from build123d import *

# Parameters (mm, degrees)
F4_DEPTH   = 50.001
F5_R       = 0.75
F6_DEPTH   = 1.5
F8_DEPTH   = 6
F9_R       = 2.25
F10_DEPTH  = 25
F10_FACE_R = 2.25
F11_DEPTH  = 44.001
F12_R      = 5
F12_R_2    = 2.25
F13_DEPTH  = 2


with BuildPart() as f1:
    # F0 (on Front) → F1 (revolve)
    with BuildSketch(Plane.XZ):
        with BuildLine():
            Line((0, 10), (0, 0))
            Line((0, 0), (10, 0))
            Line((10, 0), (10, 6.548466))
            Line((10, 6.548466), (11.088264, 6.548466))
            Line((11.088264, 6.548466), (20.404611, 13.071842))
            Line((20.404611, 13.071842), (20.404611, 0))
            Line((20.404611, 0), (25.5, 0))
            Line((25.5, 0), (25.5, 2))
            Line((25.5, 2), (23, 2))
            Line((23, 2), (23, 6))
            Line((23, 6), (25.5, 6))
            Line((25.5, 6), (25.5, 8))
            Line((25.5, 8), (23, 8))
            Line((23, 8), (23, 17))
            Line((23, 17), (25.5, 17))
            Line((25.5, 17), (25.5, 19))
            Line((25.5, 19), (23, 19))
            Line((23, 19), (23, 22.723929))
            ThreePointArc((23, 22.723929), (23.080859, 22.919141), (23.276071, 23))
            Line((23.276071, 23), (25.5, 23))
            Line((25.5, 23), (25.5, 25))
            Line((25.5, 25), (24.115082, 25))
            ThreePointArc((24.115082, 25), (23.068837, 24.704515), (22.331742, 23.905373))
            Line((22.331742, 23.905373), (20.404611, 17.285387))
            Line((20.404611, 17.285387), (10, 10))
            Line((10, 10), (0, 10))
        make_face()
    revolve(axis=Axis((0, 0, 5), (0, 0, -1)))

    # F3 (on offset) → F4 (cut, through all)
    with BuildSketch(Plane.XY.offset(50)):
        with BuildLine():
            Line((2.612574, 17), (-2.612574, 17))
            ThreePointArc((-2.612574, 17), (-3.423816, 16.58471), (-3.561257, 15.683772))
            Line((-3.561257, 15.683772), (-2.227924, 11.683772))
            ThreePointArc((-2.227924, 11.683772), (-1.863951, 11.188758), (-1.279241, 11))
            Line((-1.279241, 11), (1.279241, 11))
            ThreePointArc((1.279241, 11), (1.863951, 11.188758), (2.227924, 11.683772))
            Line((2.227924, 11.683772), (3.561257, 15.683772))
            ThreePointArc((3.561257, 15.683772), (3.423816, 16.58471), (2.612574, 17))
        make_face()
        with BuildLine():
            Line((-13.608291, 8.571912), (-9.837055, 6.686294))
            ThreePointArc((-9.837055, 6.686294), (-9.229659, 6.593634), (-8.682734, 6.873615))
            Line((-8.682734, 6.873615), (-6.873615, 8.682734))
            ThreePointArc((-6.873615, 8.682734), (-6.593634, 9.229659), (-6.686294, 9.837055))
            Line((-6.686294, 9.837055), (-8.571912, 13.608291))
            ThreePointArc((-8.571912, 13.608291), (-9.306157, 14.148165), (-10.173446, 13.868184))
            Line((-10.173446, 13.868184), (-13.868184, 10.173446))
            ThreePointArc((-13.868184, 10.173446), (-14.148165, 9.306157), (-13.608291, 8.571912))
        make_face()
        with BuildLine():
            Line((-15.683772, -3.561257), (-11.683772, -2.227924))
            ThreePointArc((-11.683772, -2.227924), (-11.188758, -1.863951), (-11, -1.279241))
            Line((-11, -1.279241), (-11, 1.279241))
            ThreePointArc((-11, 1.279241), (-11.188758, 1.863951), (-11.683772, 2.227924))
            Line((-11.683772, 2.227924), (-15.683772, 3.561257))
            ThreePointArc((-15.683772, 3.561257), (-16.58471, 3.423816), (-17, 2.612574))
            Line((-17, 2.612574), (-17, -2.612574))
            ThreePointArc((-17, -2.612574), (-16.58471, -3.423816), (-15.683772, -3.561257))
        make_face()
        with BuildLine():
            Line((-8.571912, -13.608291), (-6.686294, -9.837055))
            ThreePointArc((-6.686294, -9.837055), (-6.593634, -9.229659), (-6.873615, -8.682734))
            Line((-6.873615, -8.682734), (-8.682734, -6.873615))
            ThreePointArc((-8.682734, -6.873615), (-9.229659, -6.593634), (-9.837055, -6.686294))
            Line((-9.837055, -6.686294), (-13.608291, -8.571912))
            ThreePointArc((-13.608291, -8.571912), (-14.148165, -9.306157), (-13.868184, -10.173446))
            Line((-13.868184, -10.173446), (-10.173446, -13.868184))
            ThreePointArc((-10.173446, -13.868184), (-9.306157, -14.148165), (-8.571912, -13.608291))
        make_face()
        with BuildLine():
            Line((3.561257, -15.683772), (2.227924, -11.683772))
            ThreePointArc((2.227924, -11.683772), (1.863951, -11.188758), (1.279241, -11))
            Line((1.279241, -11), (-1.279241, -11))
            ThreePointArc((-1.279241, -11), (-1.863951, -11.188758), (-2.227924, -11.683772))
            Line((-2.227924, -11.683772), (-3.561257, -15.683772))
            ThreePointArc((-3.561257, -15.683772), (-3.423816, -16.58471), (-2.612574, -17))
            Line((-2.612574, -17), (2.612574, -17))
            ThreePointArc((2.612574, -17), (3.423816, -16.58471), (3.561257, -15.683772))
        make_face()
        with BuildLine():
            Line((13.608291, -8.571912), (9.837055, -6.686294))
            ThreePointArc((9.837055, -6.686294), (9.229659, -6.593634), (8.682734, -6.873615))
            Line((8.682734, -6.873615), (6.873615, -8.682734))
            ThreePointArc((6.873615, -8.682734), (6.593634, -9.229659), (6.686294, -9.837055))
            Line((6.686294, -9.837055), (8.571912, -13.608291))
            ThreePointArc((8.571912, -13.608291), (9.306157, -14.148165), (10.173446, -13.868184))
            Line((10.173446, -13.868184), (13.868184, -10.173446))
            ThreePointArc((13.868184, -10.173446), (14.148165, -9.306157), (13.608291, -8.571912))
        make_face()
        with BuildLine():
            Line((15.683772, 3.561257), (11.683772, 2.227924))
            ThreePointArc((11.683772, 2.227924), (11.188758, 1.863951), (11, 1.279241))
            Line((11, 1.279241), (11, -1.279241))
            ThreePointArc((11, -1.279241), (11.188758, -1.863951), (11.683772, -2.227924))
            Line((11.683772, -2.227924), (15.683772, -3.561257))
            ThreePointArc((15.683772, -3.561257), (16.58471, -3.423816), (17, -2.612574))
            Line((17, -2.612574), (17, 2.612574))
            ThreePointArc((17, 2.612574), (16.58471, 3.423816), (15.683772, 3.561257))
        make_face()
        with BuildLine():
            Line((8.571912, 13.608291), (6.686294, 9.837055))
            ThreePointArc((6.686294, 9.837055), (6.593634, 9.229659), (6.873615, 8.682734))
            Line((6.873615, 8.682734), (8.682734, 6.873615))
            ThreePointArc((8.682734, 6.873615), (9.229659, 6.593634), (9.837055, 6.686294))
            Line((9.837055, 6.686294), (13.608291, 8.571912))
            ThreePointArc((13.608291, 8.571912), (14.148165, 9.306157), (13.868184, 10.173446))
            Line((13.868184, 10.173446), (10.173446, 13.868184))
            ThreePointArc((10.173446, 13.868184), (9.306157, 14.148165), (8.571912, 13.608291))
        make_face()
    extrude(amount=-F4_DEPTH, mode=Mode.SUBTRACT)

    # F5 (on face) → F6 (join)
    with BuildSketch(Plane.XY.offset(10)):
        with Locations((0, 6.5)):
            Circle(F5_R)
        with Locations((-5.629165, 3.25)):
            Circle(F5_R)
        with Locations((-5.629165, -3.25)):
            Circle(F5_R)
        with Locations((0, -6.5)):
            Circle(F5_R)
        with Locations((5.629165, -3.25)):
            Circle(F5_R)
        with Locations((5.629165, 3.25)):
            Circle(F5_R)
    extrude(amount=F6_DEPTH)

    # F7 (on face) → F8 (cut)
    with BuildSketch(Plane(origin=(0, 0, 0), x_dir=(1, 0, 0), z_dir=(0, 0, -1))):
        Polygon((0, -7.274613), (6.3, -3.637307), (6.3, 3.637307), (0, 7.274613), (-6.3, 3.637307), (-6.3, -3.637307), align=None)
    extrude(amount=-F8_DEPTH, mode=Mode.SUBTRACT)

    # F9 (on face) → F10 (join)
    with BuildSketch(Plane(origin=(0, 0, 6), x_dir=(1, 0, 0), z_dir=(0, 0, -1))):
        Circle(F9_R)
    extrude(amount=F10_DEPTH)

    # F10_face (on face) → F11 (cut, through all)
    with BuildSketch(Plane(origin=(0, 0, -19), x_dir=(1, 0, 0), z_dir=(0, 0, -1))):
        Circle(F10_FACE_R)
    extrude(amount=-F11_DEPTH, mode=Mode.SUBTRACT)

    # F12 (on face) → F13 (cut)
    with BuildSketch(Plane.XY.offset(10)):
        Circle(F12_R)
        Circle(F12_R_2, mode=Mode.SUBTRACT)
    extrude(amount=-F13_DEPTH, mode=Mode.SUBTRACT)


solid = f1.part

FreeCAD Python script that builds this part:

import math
import FreeCAD as App
import Part
import Sketcher

V = App.Vector
Q = App.Units.Quantity


def add_polygon(sketch, points):
    """Adds a closed chain of lines whose ends are joined by coincident constraints."""
    first, n = sketch.GeometryCount, len(points)
    for a, b in zip(points, points[1:] + points[:1]):
        sketch.addGeometry(Part.LineSegment(App.Vector(*a, 0), App.Vector(*b, 0)), False)
    for i in range(n):
        sketch.addConstraint(Sketcher.Constraint("Coincident", first + i, 2, first + (i + 1) % n, 1))

doc = App.newDocument("Part")
body = doc.addObject("PartDesign::Body", "Body")

# Sketch on XZ plane
sketch1 = body.newObject("Sketcher::SketchObject", "Sketch")
sketch1.AttachmentSupport = (doc.getObject("XZ_Plane"), [""])
sketch1.MapMode = "FlatFace"
sketch1.addGeometry(Part.LineSegment(V(0, 10, 0), V(0, 0, 0)), False)
sketch1.addGeometry(Part.LineSegment(V(0, 0, 0), V(10, 0, 0)), False)
sketch1.addGeometry(Part.LineSegment(V(10, 0, 0), V(10, 6.55, 0)), False)
sketch1.addGeometry(Part.LineSegment(V(10, 6.55, 0), V(11.09, 6.55, 0)), False)
sketch1.addGeometry(Part.LineSegment(V(11.09, 6.55, 0), V(20.4, 13.07, 0)), False)
sketch1.addGeometry(Part.LineSegment(V(20.4, 13.07, 0), V(20.4, 0, 0)), False)
sketch1.addGeometry(Part.LineSegment(V(20.4, 0, 0), V(25.5, 0, 0)), False)
sketch1.addGeometry(Part.LineSegment(V(25.5, 0, 0), V(25.5, 2, 0)), False)
sketch1.addGeometry(Part.LineSegment(V(25.5, 2, 0), V(23, 2, 0)), False)
sketch1.addGeometry(Part.LineSegment(V(23, 2, 0), V(23, 6, 0)), False)
sketch1.addGeometry(Part.LineSegment(V(23, 6, 0), V(25.5, 6, 0)), False)
sketch1.addGeometry(Part.LineSegment(V(25.5, 6, 0), V(25.5, 8, 0)), False)
sketch1.addGeometry(Part.LineSegment(V(25.5, 8, 0), V(23, 8, 0)), False)
sketch1.addGeometry(Part.LineSegment(V(23, 8, 0), V(23, 17, 0)), False)
sketch1.addGeometry(Part.LineSegment(V(23, 17, 0), V(25.5, 17, 0)), False)
sketch1.addGeometry(Part.LineSegment(V(25.5, 17, 0), V(25.5, 19, 0)), False)
sketch1.addGeometry(Part.LineSegment(V(25.5, 19, 0), V(23, 19, 0)), False)
sketch1.addGeometry(Part.LineSegment(V(23, 19, 0), V(23, 22.72, 0)), False)
sketch1.addGeometry(Part.ArcOfCircle(Part.Circle(V(23.28, 22.72, 0), V(0, 0, 1), 0.28), math.radians(90), math.radians(180)), False)
sketch1.addGeometry(Part.LineSegment(V(23.28, 23, 0), V(25.5, 23, 0)), False)
sketch1.addGeometry(Part.LineSegment(V(25.5, 23, 0), V(25.5, 25, 0)), False)
sketch1.addGeometry(Part.LineSegment(V(25.5, 25, 0), V(24.12, 25, 0)), False)
sketch1.addGeometry(Part.ArcOfCircle(Part.Circle(V(24.12, 23, 0), V(0, 0, 1), 2), math.radians(90), math.radians(153)), False)
sketch1.addGeometry(Part.LineSegment(V(22.33, 23.91, 0), V(20.4, 17.29, 0)), False)
sketch1.addGeometry(Part.LineSegment(V(20.4, 17.29, 0), V(10, 10, 0)), False)
sketch1.addGeometry(Part.LineSegment(V(10, 10, 0), V(0, 10, 0)), False)
sketch1.addConstraint(Sketcher.Constraint("Coincident", 0, 2, 1, 1))
sketch1.addConstraint(Sketcher.Constraint("Coincident", 1, 2, 2, 1))
sketch1.addConstraint(Sketcher.Constraint("Coincident", 2, 2, 3, 1))
sketch1.addConstraint(Sketcher.Constraint("Coincident", 3, 2, 4, 1))
sketch1.addConstraint(Sketcher.Constraint("Coincident", 4, 2, 5, 1))
sketch1.addConstraint(Sketcher.Constraint("Coincident", 5, 2, 6, 1))
sketch1.addConstraint(Sketcher.Constraint("Coincident", 6, 2, 7, 1))
sketch1.addConstraint(Sketcher.Constraint("Coincident", 7, 2, 8, 1))
sketch1.addConstraint(Sketcher.Constraint("Coincident", 8, 2, 9, 1))
sketch1.addConstraint(Sketcher.Constraint("Coincident", 9, 2, 10, 1))
sketch1.addConstraint(Sketcher.Constraint("Coincident", 10, 2, 11, 1))
sketch1.addConstraint(Sketcher.Constraint("Coincident", 11, 2, 12, 1))
sketch1.addConstraint(Sketcher.Constraint("Coincident", 12, 2, 13, 1))
sketch1.addConstraint(Sketcher.Constraint("Coincident", 13, 2, 14, 1))
sketch1.addConstraint(Sketcher.Constraint("Coincident", 14, 2, 15, 1))
sketch1.addConstraint(Sketcher.Constraint("Coincident", 15, 2, 16, 1))
sketch1.addConstraint(Sketcher.Constraint("Coincident", 16, 2, 17, 1))
sketch1.addConstraint(Sketcher.Constraint("Coincident", 17, 2, 18, 2))
sketch1.addConstraint(Sketcher.Constraint("Coincident", 18, 1, 19, 1))
sketch1.addConstraint(Sketcher.Constraint("Coincident", 19, 2, 20, 1))
sketch1.addConstraint(Sketcher.Constraint("Coincident", 20, 2, 21, 1))
sketch1.addConstraint(Sketcher.Constraint("Tangent", 21, 2, 22, 1))
sketch1.addConstraint(Sketcher.Constraint("Coincident", 22, 2, 23, 1))
sketch1.addConstraint(Sketcher.Constraint("Coincident", 23, 2, 24, 1))
sketch1.addConstraint(Sketcher.Constraint("Coincident", 24, 2, 25, 1))
sketch1.addConstraint(Sketcher.Constraint("Coincident", 25, 2, 0, 1))
sketch1.addConstraint(Sketcher.Constraint("Vertical", 0))
sketch1.addConstraint(Sketcher.Constraint("Horizontal", 1))
sketch1.addConstraint(Sketcher.Constraint("Vertical", 2))
sketch1.addConstraint(Sketcher.Constraint("Horizontal", 3))
sketch1.addConstraint(Sketcher.Constraint("Vertical", 5))
sketch1.addConstraint(Sketcher.Constraint("Horizontal", 6))
sketch1.addConstraint(Sketcher.Constraint("Vertical", 7))
sketch1.addConstraint(Sketcher.Constraint("Horizontal", 8))
sketch1.addConstraint(Sketcher.Constraint("Vertical", 9))
sketch1.addConstraint(Sketcher.Constraint("Horizontal", 10))
sketch1.addConstraint(Sketcher.Constraint("Vertical", 11))
sketch1.addConstraint(Sketcher.Constraint("Horizontal", 12))
sketch1.addConstraint(Sketcher.Constraint("Vertical", 13))
sketch1.addConstraint(Sketcher.Constraint("Horizontal", 14))
sketch1.addConstraint(Sketcher.Constraint("Vertical", 15))
sketch1.addConstraint(Sketcher.Constraint("Horizontal", 16))
sketch1.addConstraint(Sketcher.Constraint("Vertical", 17))
sketch1.addConstraint(Sketcher.Constraint("Horizontal", 19))
sketch1.addConstraint(Sketcher.Constraint("Vertical", 20))
sketch1.addConstraint(Sketcher.Constraint("Horizontal", 21))
sketch1.addConstraint(Sketcher.Constraint("Horizontal", 25))
sketch1.addConstraint(Sketcher.Constraint("Coincident", 0, 2, -1, 1))
sketch1.addConstraint(Sketcher.Constraint("PointOnObject", 5, 2, -1))
sketch1.addConstraint(Sketcher.Constraint("Parallel", 4, 24))
sketch1.addConstraint(Sketcher.Constraint("Horizontal", 18, 3, 17, 2))
sketch1.addConstraint(Sketcher.Constraint("Horizontal", 22, 3, 18, 1))
sketch1.addConstraint(Sketcher.Constraint("Vertical", 7, 2, 10, 2))
sketch1.addConstraint(Sketcher.Constraint("Vertical", 9, 2, 12, 2))
sketch1.addConstraint(Sketcher.Constraint("Vertical", 11, 2, 14, 2))
sketch1.addConstraint(Sketcher.Constraint("Vertical", 13, 2, 16, 2))
sketch1.addConstraint(Sketcher.Constraint("Vertical", 15, 2, 19, 2))
sketch1.addConstraint(Sketcher.Constraint("Vertical", 5, 2, 23, 2))
sketch1.addConstraint(Sketcher.Constraint("Vertical", 2, 2, 24, 2))
sketch1.addConstraint(Sketcher.Constraint("Equal", 25, 0))
sketch1.addConstraint(Sketcher.Constraint("Equal", 7, 11))
sketch1.addConstraint(Sketcher.Constraint("Equal", 11, 15))
sketch1.addConstraint(Sketcher.Constraint("Equal", 15, 20))
sketch1.addConstraint(Sketcher.Constraint("Radius", 22, Q("2.000002 mm")))
sketch1.addConstraint(Sketcher.Constraint("DistanceX", 1, 1, 1, 2, Q("10 mm")))
sketch1.addConstraint(Sketcher.Constraint("DistanceY", 9, 1, 9, 2, Q("4 mm")))
sketch1.addConstraint(Sketcher.Constraint("DistanceY", 13, 1, 13, 2, Q("9 mm")))
sketch1.addConstraint(Sketcher.Constraint("Angle", 4, Q("34.999998 deg")))
sketch1.addConstraint(Sketcher.Constraint("DistanceX", 8, 2, 8, 1, Q("2.5 mm")))
sketch1.addConstraint(Sketcher.Constraint("DistanceY", -1, 1, 22, 3, Q("22.999998 mm")))
sketch1.addConstraint(Sketcher.Constraint("DistanceX", -1, 1, 8, 2, Q("23 mm")))
sketch1.addConstraint(Sketcher.Constraint("Radius", 18, Q("0.27607 mm")))
sketch1.addConstraint(Sketcher.Constraint("DistanceX", 6, 1, 6, 2, Q("5.095389 mm")))
sketch1.addConstraint(Sketcher.Constraint("DistanceX", 19, 1, 19, 2, Q("2.223929 mm")))
sketch1.addConstraint(Sketcher.Constraint("Distance", 4, Q("11.373159 mm")))
sketch1.addConstraint(Sketcher.Constraint("DistanceX", 21, 2, 21, 1, Q("1.384918 mm")))
sketch1.addConstraint(Sketcher.Constraint("DistanceY", 2, 1, 2, 2, Q("6.548466 mm")))
sketch1.addConstraint(Sketcher.Constraint("DistanceX", -1, 1, 22, 2, Q("22.331742 mm")))
revolution = body.newObject("PartDesign::Revolution", "Revolution")
revolution.Profile = sketch1
revolution.ReferenceAxis = (sketch1, ["V_Axis"])
revolution.Angle = 360

# Sketch on XY plane
sketch2 = body.newObject("Sketcher::SketchObject", "Sketch001")
sketch2.AttachmentSupport = (doc.getObject("XY_Plane"), [""])
sketch2.MapMode = "FlatFace"
sketch2.AttachmentOffset = App.Placement(V(0, 0, 50), App.Rotation())
sketch2.addGeometry(Part.LineSegment(V(2.6, 17, 0), V(-2.6, 17, 0)), False)
sketch2.addGeometry(Part.ArcOfCircle(Part.Circle(V(-2.6, 16, 0), V(0, 0, 1), 1), math.radians(90), math.radians(198)), False)
sketch2.addGeometry(Part.LineSegment(V(-3.6, 15.7, 0), V(-2.2, 11.7, 0)), False)
sketch2.addGeometry(Part.ArcOfCircle(Part.Circle(V(-1.3, 12, 0), V(0, 0, 1), 1), math.radians(-162), math.radians(-90)), False)
sketch2.addGeometry(Part.LineSegment(V(-1.3, 11, 0), V(1.3, 11, 0)), False)
sketch2.addGeometry(Part.ArcOfCircle(Part.Circle(V(1.3, 12, 0), V(0, 0, 1), 1), math.radians(-90), math.radians(-18)), False)
sketch2.addGeometry(Part.LineSegment(V(2.2, 11.7, 0), V(3.6, 15.7, 0)), False)
sketch2.addGeometry(Part.ArcOfCircle(Part.Circle(V(2.6, 16, 0), V(0, 0, 1), 1), math.radians(-18), math.radians(90)), False)
sketch2.addGeometry(Part.LineSegment(V(-13.6, 8.6, 0), V(-9.8, 6.7, 0)), False)
sketch2.addGeometry(Part.ArcOfCircle(Part.Circle(V(-9.4, 7.6, 0), V(0, 0, 1), 1), math.radians(-117), math.radians(-45)), False)
sketch2.addGeometry(Part.LineSegment(V(-8.7, 6.9, 0), V(-6.9, 8.7, 0)), False)
sketch2.addGeometry(Part.ArcOfCircle(Part.Circle(V(-7.6, 9.4, 0), V(0, 0, 1), 1), math.radians(-45), math.radians(27)), False)
sketch2.addGeometry(Part.LineSegment(V(-6.7, 9.8, 0), V(-8.6, 13.6, 0)), False)
sketch2.addGeometry(Part.ArcOfCircle(Part.Circle(V(-9.5, 13.2, 0), V(0, 0, 1), 1), math.radians(27), math.radians(135)), False)
sketch2.addGeometry(Part.LineSegment(V(-10.2, 13.9, 0), V(-13.9, 10.2, 0)), False)
sketch2.addGeometry(Part.ArcOfCircle(Part.Circle(V(-13.2, 9.5, 0), V(0, 0, 1), 1), math.radians(135), math.radians(243)), False)
sketch2.addGeometry(Part.LineSegment(V(-15.7, -3.6, 0), V(-11.7, -2.2, 0)), False)
sketch2.addGeometry(Part.ArcOfCircle(Part.Circle(V(-12, -1.3, 0), V(0, 0, 1), 1), math.radians(-72), math.radians(0)), False)
sketch2.addGeometry(Part.LineSegment(V(-11, -1.3, 0), V(-11, 1.3, 0)), False)
sketch2.addGeometry(Part.ArcOfCircle(Part.Circle(V(-12, 1.3, 0), V(0, 0, 1), 1), math.radians(0), math.radians(72)), False)
sketch2.addGeometry(Part.LineSegment(V(-11.7, 2.2, 0), V(-15.7, 3.6, 0)), False)
sketch2.addGeometry(Part.ArcOfCircle(Part.Circle(V(-16, 2.6, 0), V(0, 0, 1), 1), math.radians(72), math.radians(180)), False)
sketch2.addGeometry(Part.LineSegment(V(-17, 2.6, 0), V(-17, -2.6, 0)), False)
sketch2.addGeometry(Part.ArcOfCircle(Part.Circle(V(-16, -2.6, 0), V(0, 0, 1), 1), math.radians(-180), math.radians(-72)), False)
sketch2.addGeometry(Part.LineSegment(V(-8.6, -13.6, 0), V(-6.7, -9.8, 0)), False)
sketch2.addGeometry(Part.ArcOfCircle(Part.Circle(V(-7.6, -9.4, 0), V(0, 0, 1), 1), math.radians(-27), math.radians(45)), False)
sketch2.addGeometry(Part.LineSegment(V(-6.9, -8.7, 0), V(-8.7, -6.9, 0)), False)
sketch2.addGeometry(Part.ArcOfCircle(Part.Circle(V(-9.4, -7.6, 0), V(0, 0, 1), 1), math.radians(45), math.radians(117)), False)
sketch2.addGeometry(Part.LineSegment(V(-9.8, -6.7, 0), V(-13.6, -8.6, 0)), False)
sketch2.addGeometry(Part.ArcOfCircle(Part.Circle(V(-13.2, -9.5, 0), V(0, 0, 1), 1), math.radians(117), math.radians(225)), False)
sketch2.addGeometry(Part.LineSegment(V(-13.9, -10.2, 0), V(-10.2, -13.9, 0)), False)
sketch2.addGeometry(Part.ArcOfCircle(Part.Circle(V(-9.5, -13.2, 0), V(0, 0, 1), 1), math.radians(-135), math.radians(-27)), False)
sketch2.addGeometry(Part.LineSegment(V(3.6, -15.7, 0), V(2.2, -11.7, 0)), False)
sketch2.addGeometry(Part.ArcOfCircle(Part.Circle(V(1.3, -12, 0), V(0, 0, 1), 1), math.radians(18), math.radians(90)), False)
sketch2.addGeometry(Part.LineSegment(V(1.3, -11, 0), V(-1.3, -11, 0)), False)
sketch2.addGeometry(Part.ArcOfCircle(Part.Circle(V(-1.3, -12, 0), V(0, 0, 1), 1), math.radians(90), math.radians(162)), False)
sketch2.addGeometry(Part.LineSegment(V(-2.2, -11.7, 0), V(-3.6, -15.7, 0)), False)
sketch2.addGeometry(Part.ArcOfCircle(Part.Circle(V(-2.6, -16, 0), V(0, 0, 1), 1), math.radians(162), math.radians(270)), False)
sketch2.addGeometry(Part.LineSegment(V(-2.6, -17, 0), V(2.6, -17, 0)), False)
sketch2.addGeometry(Part.ArcOfCircle(Part.Circle(V(2.6, -16, 0), V(0, 0, 1), 1), math.radians(-90), math.radians(18)), False)
sketch2.addGeometry(Part.LineSegment(V(13.6, -8.6, 0), V(9.8, -6.7, 0)), False)
sketch2.addGeometry(Part.ArcOfCircle(Part.Circle(V(9.4, -7.6, 0), V(0, 0, 1), 1), math.radians(63), math.radians(135)), False)
sketch2.addGeometry(Part.LineSegment(V(8.7, -6.9, 0), V(6.9, -8.7, 0)), False)
sketch2.addGeometry(Part.ArcOfCircle(Part.Circle(V(7.6, -9.4, 0), V(0, 0, 1), 1), math.radians(135), math.radians(207)), False)
sketch2.addGeometry(Part.LineSegment(V(6.7, -9.8, 0), V(8.6, -13.6, 0)), False)
sketch2.addGeometry(Part.ArcOfCircle(Part.Circle(V(9.5, -13.2, 0), V(0, 0, 1), 1), math.radians(-153), math.radians(-45)), False)
sketch2.addGeometry(Part.LineSegment(V(10.2, -13.9, 0), V(13.9, -10.2, 0)), False)
sketch2.addGeometry(Part.ArcOfCircle(Part.Circle(V(13.2, -9.5, 0), V(0, 0, 1), 1), math.radians(-45), math.radians(63)), False)
sketch2.addGeometry(Part.LineSegment(V(15.7, 3.6, 0), V(11.7, 2.2, 0)), False)
sketch2.addGeometry(Part.ArcOfCircle(Part.Circle(V(12, 1.3, 0), V(0, 0, 1), 1), math.radians(108), math.radians(180)), False)
sketch2.addGeometry(Part.LineSegment(V(11, 1.3, 0), V(11, -1.3, 0)), False)
sketch2.addGeometry(Part.ArcOfCircle(Part.Circle(V(12, -1.3, 0), V(0, 0, 1), 1), math.radians(-180), math.radians(-108)), False)
sketch2.addGeometry(Part.LineSegment(V(11.7, -2.2, 0), V(15.7, -3.6, 0)), False)
sketch2.addGeometry(Part.ArcOfCircle(Part.Circle(V(16, -2.6, 0), V(0, 0, 1), 1), math.radians(-108), math.radians(0)), False)
sketch2.addGeometry(Part.LineSegment(V(17, -2.6, 0), V(17, 2.6, 0)), False)
sketch2.addGeometry(Part.ArcOfCircle(Part.Circle(V(16, 2.6, 0), V(0, 0, 1), 1), math.radians(0), math.radians(108)), False)
sketch2.addGeometry(Part.LineSegment(V(8.6, 13.6, 0), V(6.7, 9.8, 0)), False)
sketch2.addGeometry(Part.ArcOfCircle(Part.Circle(V(7.6, 9.4, 0), V(0, 0, 1), 1), math.radians(153), math.radians(225)), False)
sketch2.addGeometry(Part.LineSegment(V(6.9, 8.7, 0), V(8.7, 6.9, 0)), False)
sketch2.addGeometry(Part.ArcOfCircle(Part.Circle(V(9.4, 7.6, 0), V(0, 0, 1), 1), math.radians(-135), math.radians(-63)), False)
sketch2.addGeometry(Part.LineSegment(V(9.8, 6.7, 0), V(13.6, 8.6, 0)), False)
sketch2.addGeometry(Part.ArcOfCircle(Part.Circle(V(13.2, 9.5, 0), V(0, 0, 1), 1), math.radians(-63), math.radians(45)), False)
sketch2.addGeometry(Part.LineSegment(V(13.9, 10.2, 0), V(10.2, 13.9, 0)), False)
sketch2.addGeometry(Part.ArcOfCircle(Part.Circle(V(9.5, 13.2, 0), V(0, 0, 1), 1), math.radians(45), math.radians(153)), False)
sketch2.addConstraint(Sketcher.Constraint("Tangent", 0, 2, 1, 1))
sketch2.addConstraint(Sketcher.Constraint("Tangent", 1, 2, 2, 1))
sketch2.addConstraint(Sketcher.Constraint("Tangent", 2, 2, 3, 1))
sketch2.addConstraint(Sketcher.Constraint("Tangent", 3, 2, 4, 1))
sketch2.addConstraint(Sketcher.Constraint("Tangent", 4, 2, 5, 1))
sketch2.addConstraint(Sketcher.Constraint("Tangent", 5, 2, 6, 1))
sketch2.addConstraint(Sketcher.Constraint("Tangent", 6, 2, 7, 1))
sketch2.addConstraint(Sketcher.Constraint("Tangent", 7, 2, 0, 1))
sketch2.addConstraint(Sketcher.Constraint("Tangent", 8, 2, 9, 1))
sketch2.addConstraint(Sketcher.Constraint("Tangent", 9, 2, 10, 1))
sketch2.addConstraint(Sketcher.Constraint("Tangent", 10, 2, 11, 1))
sketch2.addConstraint(Sketcher.Constraint("Tangent", 11, 2, 12, 1))
sketch2.addConstraint(Sketcher.Constraint("Tangent", 12, 2, 13, 1))
sketch2.addConstraint(Sketcher.Constraint("Tangent", 13, 2, 14, 1))
sketch2.addConstraint(Sketcher.Constraint("Tangent", 14, 2, 15, 1))
sketch2.addConstraint(Sketcher.Constraint("Tangent", 15, 2, 8, 1))
sketch2.addConstraint(Sketcher.Constraint("Tangent", 16, 2, 17, 1))
sketch2.addConstraint(Sketcher.Constraint("Tangent", 17, 2, 18, 1))
sketch2.addConstraint(Sketcher.Constraint("Tangent", 18, 2, 19, 1))
sketch2.addConstraint(Sketcher.Constraint("Tangent", 19, 2, 20, 1))
sketch2.addConstraint(Sketcher.Constraint("Tangent", 20, 2, 21, 1))
sketch2.addConstraint(Sketcher.Constraint("Tangent", 21, 2, 22, 1))
sketch2.addConstraint(Sketcher.Constraint("Tangent", 22, 2, 23, 1))
sketch2.addConstraint(Sketcher.Constraint("Tangent", 23, 2, 16, 1))
sketch2.addConstraint(Sketcher.Constraint("Tangent", 24, 2, 25, 1))
sketch2.addConstraint(Sketcher.Constraint("Tangent", 25, 2, 26, 1))
sketch2.addConstraint(Sketcher.Constraint("Tangent", 26, 2, 27, 1))
sketch2.addConstraint(Sketcher.Constraint("Tangent", 27, 2, 28, 1))
sketch2.addConstraint(Sketcher.Constraint("Tangent", 28, 2, 29, 1))
sketch2.addConstraint(Sketcher.Constraint("Tangent", 29, 2, 30, 1))
sketch2.addConstraint(Sketcher.Constraint("Tangent", 30, 2, 31, 1))
sketch2.addConstraint(Sketcher.Constraint("Tangent", 31, 2, 24, 1))
sketch2.addConstraint(Sketcher.Constraint("Tangent", 32, 2, 33, 1))
sketch2.addConstraint(Sketcher.Constraint("Tangent", 33, 2, 34, 1))
sketch2.addConstraint(Sketcher.Constraint("Tangent", 34, 2, 35, 1))
sketch2.addConstraint(Sketcher.Constraint("Tangent", 35, 2, 36, 1))
sketch2.addConstraint(Sketcher.Constraint("Tangent", 36, 2, 37, 1))
sketch2.addConstraint(Sketcher.Constraint("Tangent", 37, 2, 38, 1))
sketch2.addConstraint(Sketcher.Constraint("Tangent", 38, 2, 39, 1))
sketch2.addConstraint(Sketcher.Constraint("Tangent", 39, 2, 32, 1))
sketch2.addConstraint(Sketcher.Constraint("Tangent", 40, 2, 41, 1))
sketch2.addConstraint(Sketcher.Constraint("Tangent", 41, 2, 42, 1))
sketch2.addConstraint(Sketcher.Constraint("Tangent", 42, 2, 43, 1))
sketch2.addConstraint(Sketcher.Constraint("Tangent", 43, 2, 44, 1))
sketch2.addConstraint(Sketcher.Constraint("Tangent", 44, 2, 45, 1))
sketch2.addConstraint(Sketcher.Constraint("Tangent", 45, 2, 46, 1))
sketch2.addConstraint(Sketcher.Constraint("Tangent", 46, 2, 47, 1))
sketch2.addConstraint(Sketcher.Constraint("Tangent", 47, 2, 40, 1))
sketch2.addConstraint(Sketcher.Constraint("Tangent", 48, 2, 49, 1))
sketch2.addConstraint(Sketcher.Constraint("Tangent", 49, 2, 50, 1))
sketch2.addConstraint(Sketcher.Constraint("Tangent", 50, 2, 51, 1))
sketch2.addConstraint(Sketcher.Constraint("Tangent", 51, 2, 52, 1))
sketch2.addConstraint(Sketcher.Constraint("Tangent", 52, 2, 53, 1))
sketch2.addConstraint(Sketcher.Constraint("Tangent", 53, 2, 54, 1))
sketch2.addConstraint(Sketcher.Constraint("Tangent", 54, 2, 55, 1))
sketch2.addConstraint(Sketcher.Constraint("Tangent", 55, 2, 48, 1))
sketch2.addConstraint(Sketcher.Constraint("Tangent", 56, 2, 57, 1))
sketch2.addConstraint(Sketcher.Constraint("Tangent", 57, 2, 58, 1))
sketch2.addConstraint(Sketcher.Constraint("Tangent", 58, 2, 59, 1))
sketch2.addConstraint(Sketcher.Constraint("Tangent", 59, 2, 60, 1))
sketch2.addConstraint(Sketcher.Constraint("Tangent", 60, 2, 61, 1))
sketch2.addConstraint(Sketcher.Constraint("Tangent", 61, 2, 62, 1))
sketch2.addConstraint(Sketcher.Constraint("Tangent", 62, 2, 63, 1))
sketch2.addConstraint(Sketcher.Constraint("Tangent", 63, 2, 56, 1))
sketch2.addConstraint(Sketcher.Constraint("Horizontal", 0))
sketch2.addConstraint(Sketcher.Constraint("Horizontal", 4))
sketch2.addConstraint(Sketcher.Constraint("Vertical", 18))
sketch2.addConstraint(Sketcher.Constraint("Vertical", 22))
sketch2.addConstraint(Sketcher.Constraint("Horizontal", 34))
sketch2.addConstraint(Sketcher.Constraint("Horizontal", 38))
sketch2.addConstraint(Sketcher.Constraint("Vertical", 50))
sketch2.addConstraint(Sketcher.Constraint("Vertical", 54))
sketch2.addConstraint(Sketcher.Constraint("Equal", 1, 3))
sketch2.addConstraint(Sketcher.Constraint("Equal", 3, 5))
sketch2.addConstraint(Sketcher.Constraint("Equal", 5, 7))
sketch2.addConstraint(Sketcher.Constraint("Equal", 7, 9))
sketch2.addConstraint(Sketcher.Constraint("Equal", 9, 11))
sketch2.addConstraint(Sketcher.Constraint("Equal", 11, 13))
sketch2.addConstraint(Sketcher.Constraint("Equal", 13, 15))
sketch2.addConstraint(Sketcher.Constraint("Equal", 15, 17))
sketch2.addConstraint(Sketcher.Constraint("Equal", 17, 19))
sketch2.addConstraint(Sketcher.Constraint("Equal", 19, 21))
sketch2.addConstraint(Sketcher.Constraint("Equal", 21, 23))
sketch2.addConstraint(Sketcher.Constraint("Equal", 23, 25))
sketch2.addConstraint(Sketcher.Constraint("Equal", 25, 27))
sketch2.addConstraint(Sketcher.Constraint("Equal", 27, 29))
sketch2.addConstraint(Sketcher.Constraint("Equal", 29, 31))
sketch2.addConstraint(Sketcher.Constraint("Equal", 31, 33))
sketch2.addConstraint(Sketcher.Constraint("Equal", 33, 35))
sketch2.addConstraint(Sketcher.Constraint("Equal", 35, 37))
sketch2.addConstraint(Sketcher.Constraint("Equal", 37, 39))
sketch2.addConstraint(Sketcher.Constraint("Equal", 39, 41))
sketch2.addConstraint(Sketcher.Constraint("Equal", 41, 43))
sketch2.addConstraint(Sketcher.Constraint("Equal", 43, 45))
sketch2.addConstraint(Sketcher.Constraint("Equal", 45, 47))
sketch2.addConstraint(Sketcher.Constraint("Equal", 47, 49))
sketch2.addConstraint(Sketcher.Constraint("Equal", 49, 51))
sketch2.addConstraint(Sketcher.Constraint("Equal", 51, 53))
sketch2.addConstraint(Sketcher.Constraint("Equal", 53, 55))
sketch2.addConstraint(Sketcher.Constraint("Equal", 55, 57))
sketch2.addConstraint(Sketcher.Constraint("Equal", 57, 59))
sketch2.addConstraint(Sketcher.Constraint("Equal", 59, 61))
sketch2.addConstraint(Sketcher.Constraint("Equal", 61, 63))
sketch2.addConstraint(Sketcher.Constraint("Symmetric", 3, 3, 33, 3, -1, 1))
sketch2.addConstraint(Sketcher.Constraint("Symmetric", 7, 3, 37, 3, -1, 1))
sketch2.addConstraint(Sketcher.Constraint("Symmetric", 9, 3, 41, 3, -1, 1))
sketch2.addConstraint(Sketcher.Constraint("Symmetric", 11, 3, 43, 3, -1, 1))
sketch2.addConstraint(Sketcher.Constraint("Symmetric", 13, 3, 45, 3, -1, 1))
sketch2.addConstraint(Sketcher.Constraint("Symmetric", 15, 3, 47, 3, -1, 1))
sketch2.addConstraint(Sketcher.Constraint("Symmetric", 17, 3, 49, 3, -1, 1))
sketch2.addConstraint(Sketcher.Constraint("Symmetric", 21, 3, 53, 3, -1, 1))
sketch2.addConstraint(Sketcher.Constraint("Symmetric", 25, 3, 57, 3, -1, 1))
sketch2.addConstraint(Sketcher.Constraint("Symmetric", 27, 3, 59, 3, -1, 1))
sketch2.addConstraint(Sketcher.Constraint("Symmetric", 29, 3, 61, 3, -1, 1))
sketch2.addConstraint(Sketcher.Constraint("Symmetric", 31, 3, 63, 3, -1, 1))
sketch2.addConstraint(Sketcher.Constraint("Symmetric", 27, 3, 41, 3, -2))
sketch2.addConstraint(Sketcher.Constraint("Symmetric", 25, 3, 43, 3, -2))
sketch2.addConstraint(Sketcher.Constraint("Symmetric", 31, 3, 45, 3, -2))
sketch2.addConstraint(Sketcher.Constraint("Symmetric", 29, 3, 47, 3, -2))
sketch2.addConstraint(Sketcher.Constraint("Symmetric", 2, 2, 5, 2, -2))
sketch2.addConstraint(Sketcher.Constraint("Symmetric", 32, 2, 35, 2, -2))
sketch2.addConstraint(Sketcher.Constraint("Symmetric", 19, 2, 48, 2, -2))
sketch2.addConstraint(Sketcher.Constraint("Symmetric", 16, 2, 51, 2, -2))
sketch2.addConstraint(Sketcher.Constraint("Parallel", 10, 14))
sketch2.addConstraint(Sketcher.Constraint("Perpendicular", 2, 16))
sketch2.addConstraint(Sketcher.Constraint("Perpendicular", 8, 24))
sketch2.addConstraint(Sketcher.Constraint("Perpendicular", 14, 26))
sketch2.addConstraint(Sketcher.Constraint("Equal", 34, 18))
sketch2.addConstraint(Sketcher.Constraint("Equal", 38, 22))
sketch2.addConstraint(Sketcher.Constraint("Equal", 6, 8))
sketch2.addConstraint(Sketcher.Constraint("Radius", 1, Q("1 mm")))
sketch2.addConstraint(Sketcher.Constraint("DistanceY", -1, 1, 1, 3, Q("16 mm")))
sketch2.addConstraint(Sketcher.Constraint("DistanceY", -1, 1, 3, 3, Q("12.000001 mm")))
sketch2.addConstraint(Sketcher.Constraint("DistanceX", 17, 3, -1, 1, Q("12.000001 mm")))
sketch2.addConstraint(Sketcher.Constraint("Distance", 2, Q("4.21637 mm")))
sketch2.addConstraint(Sketcher.Constraint("Distance", 10, Q("2.558481 mm")))
sketch2.addConstraint(Sketcher.Constraint("Distance", 14, Q("5.225149 mm")))
sketch2.addConstraint(Sketcher.Constraint("DistanceX", 0, 2, 0, 1, Q("5.225148 mm")))
sketch2.addConstraint(Sketcher.Constraint("DistanceX", 9, 3, -1, 1, Q("9.389842 mm")))
sketch2.addConstraint(Sketcher.Constraint("DistanceY", -1, 1, 11, 3, Q("9.389842 mm")))
pocket1 = body.newObject("PartDesign::Pocket", "Pocket")
pocket1.Profile = sketch2
pocket1.Type = "ThroughAll"

# Sketch on XY plane
sketch3 = body.newObject("Sketcher::SketchObject", "Sketch002")
sketch3.AttachmentSupport = (doc.getObject("XY_Plane"), [""])
sketch3.MapMode = "FlatFace"
sketch3.AttachmentOffset = App.Placement(V(0, 0, 10), App.Rotation())
sketch3.addGeometry(Part.Circle(V(0, 6.5, 0), V(0, 0, 1), 0.8), False)
sketch3.addGeometry(Part.Circle(V(-5.6, 3.2, 0), V(0, 0, 1), 0.8), False)
sketch3.addGeometry(Part.Circle(V(-5.6, -3.2, 0), V(0, 0, 1), 0.8), False)
sketch3.addGeometry(Part.Circle(V(0, -6.5, 0), V(0, 0, 1), 0.8), False)
sketch3.addGeometry(Part.Circle(V(5.6, -3.2, 0), V(0, 0, 1), 0.8), False)
sketch3.addGeometry(Part.Circle(V(5.6, 3.2, 0), V(0, 0, 1), 0.8), False)
sketch3.addConstraint(Sketcher.Constraint("Equal", 0, 1))
sketch3.addConstraint(Sketcher.Constraint("Equal", 1, 2))
sketch3.addConstraint(Sketcher.Constraint("Equal", 2, 3))
sketch3.addConstraint(Sketcher.Constraint("Equal", 3, 4))
sketch3.addConstraint(Sketcher.Constraint("Equal", 4, 5))
sketch3.addConstraint(Sketcher.Constraint("Symmetric", 0, 3, 3, 3, -1, 1))
sketch3.addConstraint(Sketcher.Constraint("Symmetric", 1, 3, 4, 3, -1, 1))
sketch3.addConstraint(Sketcher.Constraint("Symmetric", 2, 3, 5, 3, -1, 1))
sketch3.addConstraint(Sketcher.Constraint("Symmetric", 2, 3, 4, 3, -2))
sketch3.addConstraint(Sketcher.Constraint("PointOnObject", 0, 3, -2))
sketch3.addConstraint(Sketcher.Constraint("Diameter", 0, Q("1.5 mm")))
sketch3.addConstraint(Sketcher.Constraint("DistanceY", 3, 3, 0, 3, Q("13 mm")))
sketch3.addConstraint(Sketcher.Constraint("DistanceY", 2, 3, 1, 3, Q("6.5 mm")))
sketch3.addConstraint(Sketcher.Constraint("DistanceX", 2, 3, 4, 3, Q("11.25833 mm")))
pad1 = body.newObject("PartDesign::Pad", "Pad")
pad1.Profile = sketch3
pad1.Length = 1.5

# Sketch on XY plane
sketch4 = body.newObject("Sketcher::SketchObject", "Sketch003")
sketch4.AttachmentSupport = (doc.getObject("XY_Plane"), [""])
sketch4.MapMode = "FlatFace"
add_polygon(sketch4, [(0, 7), (6, 4), (6, -4), (0, -7), (-6, -4), (-6, 4)])  # lines 0-5
sketch4.addConstraint(Sketcher.Constraint("Vertical", 1))
sketch4.addConstraint(Sketcher.Constraint("Vertical", 4))
sketch4.addConstraint(Sketcher.Constraint("Symmetric", 0, 2, 3, 2, -1, 1))
sketch4.addConstraint(Sketcher.Constraint("Symmetric", 2, 2, 5, 2, -1, 1))
sketch4.addConstraint(Sketcher.Constraint("PointOnObject", 2, 2, -2))
sketch4.addConstraint(Sketcher.Constraint("Parallel", 2, 5))
sketch4.addConstraint(Sketcher.Constraint("Horizontal", 1, 2, 3, 2))
sketch4.addConstraint(Sketcher.Constraint("Angle", 0, Q("-29.999995 deg")))
sketch4.addConstraint(Sketcher.Constraint("DistanceX", -1, 1, 0, 2, Q("6.3 mm")))
sketch4.addConstraint(Sketcher.Constraint("DistanceY", 1, 2, 1, 1, Q("7.274614 mm")))
pocket2 = body.newObject("PartDesign::Pocket", "Pocket001")
pocket2.Profile = sketch4
pocket2.Length = 6
pocket2.Reversed = True

# Sketch on XY plane
sketch5 = body.newObject("Sketcher::SketchObject", "Sketch004")
sketch5.AttachmentSupport = (doc.getObject("XY_Plane"), [""])
sketch5.MapMode = "FlatFace"
sketch5.AttachmentOffset = App.Placement(V(0, 0, 6), App.Rotation())
sketch5.addGeometry(Part.Circle(V(0, 0, 0), V(0, 0, 1), 2.2), False)
sketch5.addConstraint(Sketcher.Constraint("Coincident", 0, 3, -1, 1))
sketch5.addConstraint(Sketcher.Constraint("Diameter", 0, Q("4.5 mm")))
pad2 = body.newObject("PartDesign::Pad", "Pad001")
pad2.Profile = sketch5
pad2.Length = 25
pad2.Reversed = True

# Sketch on XY plane
sketch6 = body.newObject("Sketcher::SketchObject", "Sketch005")
sketch6.AttachmentSupport = (doc.getObject("XY_Plane"), [""])
sketch6.MapMode = "FlatFace"
sketch6.AttachmentOffset = App.Placement(V(0, 0, -19), App.Rotation())
sketch6.addGeometry(Part.Circle(V(0, 0, 0), V(0, 0, 1), 2.2), False)
sketch6.addConstraint(Sketcher.Constraint("Coincident", 0, 3, -1, 1))
sketch6.addConstraint(Sketcher.Constraint("Diameter", 0, Q("4.5 mm")))
pocket3 = body.newObject("PartDesign::Pocket", "Pocket002")
pocket3.Profile = sketch6
pocket3.Type = "ThroughAll"
pocket3.Reversed = True

# Sketch on XY plane
sketch7 = body.newObject("Sketcher::SketchObject", "Sketch006")
sketch7.AttachmentSupport = (doc.getObject("XY_Plane"), [""])
sketch7.MapMode = "FlatFace"
sketch7.AttachmentOffset = App.Placement(V(0, 0, 10), App.Rotation())
sketch7.addGeometry(Part.Circle(V(0, 0, 0), V(0, 0, 1), 5), False)
sketch7.addGeometry(Part.Circle(V(0, 0, 0), V(0, 0, 1), 2.2), False)
sketch7.addConstraint(Sketcher.Constraint("Coincident", 0, 3, -1, 1))
sketch7.addConstraint(Sketcher.Constraint("Coincident", 1, 3, -1, 1))
sketch7.addConstraint(Sketcher.Constraint("Diameter", 0, Q("10 mm")))
sketch7.addConstraint(Sketcher.Constraint("Diameter", 1, Q("4.5 mm")))
pocket4 = body.newObject("PartDesign::Pocket", "Pocket003")
pocket4.Profile = sketch7
pocket4.Length = 2

doc.recompute()
